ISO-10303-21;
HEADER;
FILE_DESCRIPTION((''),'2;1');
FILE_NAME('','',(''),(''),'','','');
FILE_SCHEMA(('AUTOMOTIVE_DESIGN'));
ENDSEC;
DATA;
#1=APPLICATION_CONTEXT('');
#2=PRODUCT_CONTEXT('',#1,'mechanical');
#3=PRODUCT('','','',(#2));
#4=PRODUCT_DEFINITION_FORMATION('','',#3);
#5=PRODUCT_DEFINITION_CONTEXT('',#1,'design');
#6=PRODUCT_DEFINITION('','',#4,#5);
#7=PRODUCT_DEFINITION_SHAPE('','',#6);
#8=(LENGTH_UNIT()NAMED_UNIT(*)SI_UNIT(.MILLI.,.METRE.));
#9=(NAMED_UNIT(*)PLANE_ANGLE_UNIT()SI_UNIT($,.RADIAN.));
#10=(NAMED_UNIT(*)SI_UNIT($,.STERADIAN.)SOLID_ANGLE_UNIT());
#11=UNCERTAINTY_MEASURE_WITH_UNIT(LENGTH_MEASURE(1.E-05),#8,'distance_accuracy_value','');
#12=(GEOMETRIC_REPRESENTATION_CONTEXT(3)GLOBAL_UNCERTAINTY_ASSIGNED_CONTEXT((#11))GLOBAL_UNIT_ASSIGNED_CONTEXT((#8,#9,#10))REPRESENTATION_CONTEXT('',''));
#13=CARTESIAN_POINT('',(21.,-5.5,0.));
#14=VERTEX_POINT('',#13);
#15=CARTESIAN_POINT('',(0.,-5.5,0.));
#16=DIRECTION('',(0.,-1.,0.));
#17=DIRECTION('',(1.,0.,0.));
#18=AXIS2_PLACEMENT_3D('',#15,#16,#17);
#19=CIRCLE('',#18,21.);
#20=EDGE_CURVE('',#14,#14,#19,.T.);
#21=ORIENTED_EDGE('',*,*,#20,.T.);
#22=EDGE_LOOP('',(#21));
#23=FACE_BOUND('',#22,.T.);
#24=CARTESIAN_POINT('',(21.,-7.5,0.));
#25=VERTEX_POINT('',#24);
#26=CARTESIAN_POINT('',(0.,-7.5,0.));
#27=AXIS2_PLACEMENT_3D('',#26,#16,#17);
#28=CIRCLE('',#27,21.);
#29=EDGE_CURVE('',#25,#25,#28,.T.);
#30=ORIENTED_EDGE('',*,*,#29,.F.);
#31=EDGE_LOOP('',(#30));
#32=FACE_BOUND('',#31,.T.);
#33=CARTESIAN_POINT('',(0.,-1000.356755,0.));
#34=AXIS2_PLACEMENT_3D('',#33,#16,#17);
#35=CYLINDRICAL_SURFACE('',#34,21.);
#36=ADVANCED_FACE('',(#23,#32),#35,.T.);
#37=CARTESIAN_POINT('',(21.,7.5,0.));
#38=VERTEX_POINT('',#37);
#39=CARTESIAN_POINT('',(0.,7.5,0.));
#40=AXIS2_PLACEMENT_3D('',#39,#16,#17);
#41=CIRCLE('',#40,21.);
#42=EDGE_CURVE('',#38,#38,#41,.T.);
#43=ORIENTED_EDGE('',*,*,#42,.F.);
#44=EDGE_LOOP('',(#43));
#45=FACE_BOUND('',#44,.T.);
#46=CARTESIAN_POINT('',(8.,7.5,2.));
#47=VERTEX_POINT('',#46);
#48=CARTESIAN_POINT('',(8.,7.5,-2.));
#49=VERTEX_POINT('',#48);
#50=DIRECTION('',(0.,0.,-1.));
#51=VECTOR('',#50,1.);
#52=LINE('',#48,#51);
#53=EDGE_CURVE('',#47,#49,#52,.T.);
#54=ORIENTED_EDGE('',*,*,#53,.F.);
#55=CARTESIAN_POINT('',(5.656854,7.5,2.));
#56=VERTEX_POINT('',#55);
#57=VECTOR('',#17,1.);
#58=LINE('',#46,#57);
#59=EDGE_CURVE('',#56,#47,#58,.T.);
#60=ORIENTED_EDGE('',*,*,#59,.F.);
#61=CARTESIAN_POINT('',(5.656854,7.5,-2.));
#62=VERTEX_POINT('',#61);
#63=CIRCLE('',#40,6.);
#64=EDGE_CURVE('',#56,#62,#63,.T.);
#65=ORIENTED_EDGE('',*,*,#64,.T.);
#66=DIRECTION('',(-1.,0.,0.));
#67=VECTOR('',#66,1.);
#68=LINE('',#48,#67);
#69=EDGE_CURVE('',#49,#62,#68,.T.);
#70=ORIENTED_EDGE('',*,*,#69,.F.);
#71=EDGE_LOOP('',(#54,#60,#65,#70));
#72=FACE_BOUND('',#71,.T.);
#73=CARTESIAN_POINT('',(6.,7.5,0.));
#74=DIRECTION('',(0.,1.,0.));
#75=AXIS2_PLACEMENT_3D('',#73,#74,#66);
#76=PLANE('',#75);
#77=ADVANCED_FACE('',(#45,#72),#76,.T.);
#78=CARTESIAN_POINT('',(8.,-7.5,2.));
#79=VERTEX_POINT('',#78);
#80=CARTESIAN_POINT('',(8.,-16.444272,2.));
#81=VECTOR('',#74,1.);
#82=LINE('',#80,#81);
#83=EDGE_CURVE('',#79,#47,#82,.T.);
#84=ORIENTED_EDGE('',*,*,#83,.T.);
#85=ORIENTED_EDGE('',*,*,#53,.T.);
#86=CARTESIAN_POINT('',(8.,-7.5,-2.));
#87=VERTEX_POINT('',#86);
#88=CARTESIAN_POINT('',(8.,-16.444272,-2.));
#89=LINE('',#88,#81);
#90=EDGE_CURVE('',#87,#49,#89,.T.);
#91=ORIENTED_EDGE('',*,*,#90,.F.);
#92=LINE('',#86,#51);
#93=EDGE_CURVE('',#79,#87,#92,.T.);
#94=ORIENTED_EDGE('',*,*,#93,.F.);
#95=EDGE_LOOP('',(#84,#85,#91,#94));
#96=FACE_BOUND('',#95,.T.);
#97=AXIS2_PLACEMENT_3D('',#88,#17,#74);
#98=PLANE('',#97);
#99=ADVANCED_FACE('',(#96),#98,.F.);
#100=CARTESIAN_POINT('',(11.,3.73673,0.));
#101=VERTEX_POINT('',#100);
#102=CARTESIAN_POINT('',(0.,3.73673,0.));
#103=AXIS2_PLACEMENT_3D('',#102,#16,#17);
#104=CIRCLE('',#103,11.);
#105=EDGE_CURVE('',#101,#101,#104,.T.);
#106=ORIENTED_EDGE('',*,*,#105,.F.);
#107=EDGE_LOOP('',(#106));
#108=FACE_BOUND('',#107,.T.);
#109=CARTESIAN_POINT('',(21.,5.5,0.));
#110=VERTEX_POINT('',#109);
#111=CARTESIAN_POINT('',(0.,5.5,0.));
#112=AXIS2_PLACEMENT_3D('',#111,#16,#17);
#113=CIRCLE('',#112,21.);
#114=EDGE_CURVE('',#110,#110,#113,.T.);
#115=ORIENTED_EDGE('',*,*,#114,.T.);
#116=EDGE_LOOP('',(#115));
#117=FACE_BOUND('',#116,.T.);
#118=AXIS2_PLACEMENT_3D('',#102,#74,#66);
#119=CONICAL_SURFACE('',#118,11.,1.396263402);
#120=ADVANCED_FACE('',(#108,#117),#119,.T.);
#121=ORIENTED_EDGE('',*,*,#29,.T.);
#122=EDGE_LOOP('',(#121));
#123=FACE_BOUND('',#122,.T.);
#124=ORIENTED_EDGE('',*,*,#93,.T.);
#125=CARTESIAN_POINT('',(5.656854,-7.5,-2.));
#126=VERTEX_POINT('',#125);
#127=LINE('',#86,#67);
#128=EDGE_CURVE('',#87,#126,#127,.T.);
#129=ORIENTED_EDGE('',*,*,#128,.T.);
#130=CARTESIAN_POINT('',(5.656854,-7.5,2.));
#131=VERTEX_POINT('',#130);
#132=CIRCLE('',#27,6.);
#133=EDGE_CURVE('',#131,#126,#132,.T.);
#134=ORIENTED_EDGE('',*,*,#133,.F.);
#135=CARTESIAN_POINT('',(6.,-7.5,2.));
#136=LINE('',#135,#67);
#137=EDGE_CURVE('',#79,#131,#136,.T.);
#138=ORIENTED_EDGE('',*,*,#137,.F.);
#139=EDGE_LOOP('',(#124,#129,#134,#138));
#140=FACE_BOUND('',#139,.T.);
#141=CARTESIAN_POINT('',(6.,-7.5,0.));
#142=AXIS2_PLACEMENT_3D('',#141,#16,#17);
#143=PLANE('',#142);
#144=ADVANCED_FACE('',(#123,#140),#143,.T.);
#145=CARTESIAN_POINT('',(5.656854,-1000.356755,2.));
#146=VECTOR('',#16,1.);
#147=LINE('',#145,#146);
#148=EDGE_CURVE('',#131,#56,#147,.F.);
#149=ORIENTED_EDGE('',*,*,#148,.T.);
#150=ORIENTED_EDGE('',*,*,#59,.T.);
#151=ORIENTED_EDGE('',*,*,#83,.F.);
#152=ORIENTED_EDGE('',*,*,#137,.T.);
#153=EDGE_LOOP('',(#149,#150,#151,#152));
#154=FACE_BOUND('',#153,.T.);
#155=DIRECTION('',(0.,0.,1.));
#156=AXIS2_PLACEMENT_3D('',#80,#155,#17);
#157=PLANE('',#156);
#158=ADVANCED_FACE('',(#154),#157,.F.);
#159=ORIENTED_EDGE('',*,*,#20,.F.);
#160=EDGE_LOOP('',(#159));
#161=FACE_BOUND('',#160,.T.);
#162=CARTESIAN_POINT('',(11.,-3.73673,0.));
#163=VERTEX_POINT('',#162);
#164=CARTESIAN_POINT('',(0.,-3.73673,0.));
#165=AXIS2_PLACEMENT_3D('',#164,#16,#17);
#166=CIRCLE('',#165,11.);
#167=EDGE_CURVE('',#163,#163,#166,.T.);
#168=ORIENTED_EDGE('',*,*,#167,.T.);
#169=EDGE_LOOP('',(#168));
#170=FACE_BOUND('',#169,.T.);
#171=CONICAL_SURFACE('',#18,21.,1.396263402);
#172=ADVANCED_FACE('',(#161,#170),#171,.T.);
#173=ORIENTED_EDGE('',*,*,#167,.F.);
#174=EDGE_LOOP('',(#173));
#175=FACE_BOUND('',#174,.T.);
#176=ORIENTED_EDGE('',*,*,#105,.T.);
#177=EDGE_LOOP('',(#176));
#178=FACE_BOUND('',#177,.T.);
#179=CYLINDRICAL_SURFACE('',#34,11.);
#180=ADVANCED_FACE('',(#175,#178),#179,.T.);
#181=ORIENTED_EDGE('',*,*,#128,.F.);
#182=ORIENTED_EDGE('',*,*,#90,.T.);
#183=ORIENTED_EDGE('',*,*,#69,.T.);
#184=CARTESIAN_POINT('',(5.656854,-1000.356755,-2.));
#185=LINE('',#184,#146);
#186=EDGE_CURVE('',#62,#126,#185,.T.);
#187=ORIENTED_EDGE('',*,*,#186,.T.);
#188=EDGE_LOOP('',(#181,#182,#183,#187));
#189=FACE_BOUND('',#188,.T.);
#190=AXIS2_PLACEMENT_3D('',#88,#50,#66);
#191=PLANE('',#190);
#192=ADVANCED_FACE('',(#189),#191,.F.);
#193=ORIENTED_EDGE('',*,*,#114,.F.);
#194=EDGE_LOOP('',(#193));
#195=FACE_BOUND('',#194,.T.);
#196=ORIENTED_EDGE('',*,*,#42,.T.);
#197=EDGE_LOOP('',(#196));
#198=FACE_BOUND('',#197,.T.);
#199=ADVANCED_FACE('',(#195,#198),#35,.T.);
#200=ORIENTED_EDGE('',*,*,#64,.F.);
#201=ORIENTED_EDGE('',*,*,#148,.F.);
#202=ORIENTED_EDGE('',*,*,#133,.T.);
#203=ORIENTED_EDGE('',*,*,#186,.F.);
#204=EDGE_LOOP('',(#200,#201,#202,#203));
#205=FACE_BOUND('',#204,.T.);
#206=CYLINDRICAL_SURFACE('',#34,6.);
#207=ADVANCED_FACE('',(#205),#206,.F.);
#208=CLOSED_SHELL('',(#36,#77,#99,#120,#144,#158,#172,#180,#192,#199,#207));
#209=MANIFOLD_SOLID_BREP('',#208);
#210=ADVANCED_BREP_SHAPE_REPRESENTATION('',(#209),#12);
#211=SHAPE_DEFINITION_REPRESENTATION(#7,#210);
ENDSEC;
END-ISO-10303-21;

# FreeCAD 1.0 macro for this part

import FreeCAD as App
import Part
import Sketcher

V = App.Vector
Q = App.Units.Quantity


def add_polygon(sketch, points):
    """Adds a closed chain of lines whose ends are joined by coincident constraints."""
    first, n = sketch.GeometryCount, len(points)
    for a, b in zip(points, points[1:] + points[:1]):
        sketch.addGeometry(Part.LineSegment(App.Vector(*a, 0), App.Vector(*b, 0)), False)
    for i in range(n):
        sketch.addConstraint(Sketcher.Constraint("Coincident", first + i, 2, first + (i + 1) % n, 1))

doc = App.newDocument("Part")
body = doc.addObject("PartDesign::Body", "Body")

sketch1 = doc.addObject("Sketcher::SketchObject", "Sketch")
body.addObject(sketch1)
sketch1.AttachmentSupport = (doc.XY_Plane, [""])
sketch1.MapMode = "FlatFace"
add_polygon(sketch1, [(11, 3.7), (21, 5.5), (21, 7.5), (6, 7.5), (6, -7.5), (21, -7.5), (21, -5.5), (11, -3.7)])
sketch1.addConstraint([
    Sketcher.Constraint("Vertical", 1),
    Sketcher.Constraint("Horizontal", 2),
    Sketcher.Constraint("Vertical", 3),
    Sketcher.Constraint("Horizontal", 4),
    Sketcher.Constraint("Vertical", 5),
    Sketcher.Constraint("Vertical", 7),
    Sketcher.Constraint("Symmetric", 1, 2, 4, 2, -1),
    Sketcher.Constraint("Equal", 4, 3),
    Sketcher.Constraint("Equal", 1, 5),
    Sketcher.Constraint("Equal", 0, 6),
    Sketcher.Constraint("DistanceX", 2, 2, 2, 1, 15.0),
    Sketcher.Constraint("DistanceY", 1, 1, 1, 2, 2.0),
    Sketcher.Constraint("Angle", 0, Q("10 deg")),
    Sketcher.Constraint("DistanceX", -1, 1, 0, 2, 21.0),
    Sketcher.Constraint("DistanceX", -1, 1, 6, 2, 11.0),
])
revolution = doc.addObject("PartDesign::Revolution", "Revolution")
body.addObject(revolution)
revolution.Profile = sketch1
revolution.ReferenceAxis = (sketch1, ["V_Axis"])
revolution.Angle = 360

sketch2 = doc.addObject("Sketcher::SketchObject", "Sketch001")
body.addObject(sketch2)
sketch2.AttachmentSupport = (doc.XZ_Plane, [""])
sketch2.MapMode = "FlatFace"
sketch2.AttachmentOffset = App.Placement(V(0, 0, -7.5), App.Rotation())
add_polygon(sketch2, [(0, -2), (0, 2), (8, 2), (8, -2)])
sketch2.addConstraint([
    Sketcher.Constraint("Vertical", 0),
    Sketcher.Constraint("Horizontal", 1),
    Sketcher.Constraint("Vertical", 2),
    Sketcher.Constraint("Horizontal", 3),
    Sketcher.Constraint("Symmetric", 0, 2, 3, 2, -1, 1),
    Sketcher.Constraint("DistanceX", 1, 1, 1, 2, 8.0),
    Sketcher.Constraint("DistanceY", 0, 1, 0, 2, 4.0),
])
pocket1 = doc.addObject("PartDesign::Pocket", "Pocket")
body.addObject(pocket1)
pocket1.Profile = sketch2
pocket1.Length = 15
pocket1.Reversed = True

doc.recompute()
